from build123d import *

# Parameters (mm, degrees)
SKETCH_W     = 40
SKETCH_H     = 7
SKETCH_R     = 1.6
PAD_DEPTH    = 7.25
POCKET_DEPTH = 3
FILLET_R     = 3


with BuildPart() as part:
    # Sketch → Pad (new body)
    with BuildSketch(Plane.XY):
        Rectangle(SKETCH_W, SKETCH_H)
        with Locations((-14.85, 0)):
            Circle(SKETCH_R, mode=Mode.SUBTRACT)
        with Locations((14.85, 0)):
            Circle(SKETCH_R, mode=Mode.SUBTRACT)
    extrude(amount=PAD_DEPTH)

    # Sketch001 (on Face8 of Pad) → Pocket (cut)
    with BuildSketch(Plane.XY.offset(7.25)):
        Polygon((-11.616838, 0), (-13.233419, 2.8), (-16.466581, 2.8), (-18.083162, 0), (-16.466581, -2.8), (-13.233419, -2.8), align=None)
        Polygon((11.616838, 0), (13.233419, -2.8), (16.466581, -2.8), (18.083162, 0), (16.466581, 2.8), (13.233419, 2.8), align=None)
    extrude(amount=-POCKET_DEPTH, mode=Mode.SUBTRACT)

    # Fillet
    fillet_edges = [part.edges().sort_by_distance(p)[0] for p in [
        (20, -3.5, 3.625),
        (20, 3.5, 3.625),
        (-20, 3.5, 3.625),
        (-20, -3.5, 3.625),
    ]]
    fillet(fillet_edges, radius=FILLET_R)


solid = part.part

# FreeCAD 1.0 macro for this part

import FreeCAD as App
import Part
import Sketcher
Q = App.Units.Quantity


def edges_at(feature, points):
    """Names of the edges that pass closest to the given points."""
    edges = feature.Shape.Edges
    near = lambda p: min(range(len(edges)), key=lambda i: edges[i].distToShape(Part.Vertex(*p))[0])
    return sorted({f"Edge{near(p) + 1}" for p in points})

doc = App.newDocument("Part")
params = doc.addObject("Spreadsheet::Sheet", "Params")
for row, (alias, value) in enumerate([
    ("sketch1_diameter", "3.2 mm"),
    ("sketch1_width", "40 mm"),
    ("sketch1_height", "7 mm"),
    ("pad1_length", "7.25 mm"),
    ("pocket1_length", "3 mm"),
    ("fillet_radius", "3 mm"),
], start=1):
    params.set(f"A{row}", alias)
    params.set(f"B{row}", "=" + value)
    params.setAlias(f"B{row}", alias)

body = doc.addObject("PartDesign::Body", "Body")

# Sketch on XY plane
sketch1 = body.newObject("Sketcher::SketchObject", "Sketch")
sketch1.AttachmentSupport = (doc.getObject("XY_Plane"), [""])
sketch1.MapMode = "FlatFace"
sketch1.addGeometry([
    Part.LineSegment(App.Vector(-20, 3.5, 0), App.Vector(-20, -3.5, 0)),  # 0
    Part.LineSegment(App.Vector(-20, -3.5, 0), App.Vector(20, -3.5, 0)),  # 1
    Part.LineSegment(App.Vector(20, -3.5, 0), App.Vector(20, 3.5, 0)),  # 2
    Part.LineSegment(App.Vector(20, 3.5, 0), App.Vector(-20, 3.5, 0)),  # 3
    Part.Circle(App.Vector(-14.85, 0, 0), App.Vector(0, 0, 1), 1.6),  # 4
    Part.Circle(App.Vector(14.85, 0, 0), App.Vector(0, 0, 1), 1.6),  # 5
], False)
sketch1.addConstraint([
    Sketcher.Constraint("Coincident", 0, 2, 1, 1),
    Sketcher.Constraint("Coincident", 1, 2, 2, 1),
    Sketcher.Constraint("Coincident", 2, 2, 3, 1),
    Sketcher.Constraint("Coincident", 3, 2, 0, 1),
    Sketcher.Constraint("Vertical", 0),
    Sketcher.Constraint("Horizontal", 1),
    Sketcher.Constraint("Vertical", 2),
    Sketcher.Constraint("Horizontal", 3),
    Sketcher.Constraint("Equal", 4, 5),
    Sketcher.Constraint("Symmetric", 4, 3, 5, 3, -1, 1),
    Sketcher.Constraint("Symmetric", 0, 2, 2, 2, -1, 1),
    Sketcher.Constraint("PointOnObject", 4, 3, -1),
    Sketcher.Constraint("Diameter", 4, Q("3.2 mm")),
    Sketcher.Constraint("DistanceX", 1, 1, 1, 2, Q("40 mm")),
    Sketcher.Constraint("DistanceY", 0, 2, 0, 1, Q("7 mm")),
    Sketcher.Constraint("DistanceX", 4, 3, 5, 3, Q("29.7 mm")),
])
sketch1.setExpression("Constraints[12]", "Params.sketch1_diameter")
sketch1.setExpression("Constraints[13]", "Params.sketch1_width")
sketch1.setExpression("Constraints[14]", "Params.sketch1_height")
pad1 = body.newObject("PartDesign::Pad", "Pad")
pad1.Profile = sketch1
pad1.setExpression("Length", "Params.pad1_length")

# Sketch on XY plane
sketch2 = body.newObject("Sketcher::SketchObject", "Sketch001")
sketch2.AttachmentSupport = (doc.getObject("XY_Plane"), [""])
sketch2.MapMode = "FlatFace"
sketch2.AttachmentOffset = App.Placement(App.Vector(0, 0, 7.25), App.Rotation())
sketch2.addGeometry([
    Part.LineSegment(App.Vector(-11.616838, 0, 0), App.Vector(-13.233419, 2.8, 0)),  # 0
    Part.LineSegment(App.Vector(-13.233419, 2.8, 0), App.Vector(-16.466581, 2.8, 0)),  # 1
    Part.LineSegment(App.Vector(-16.466581, 2.8, 0), App.Vector(-18.083162, 0, 0)),  # 2
    Part.LineSegment(App.Vector(-18.083162, 0, 0), App.Vector(-16.466581, -2.8, 0)),  # 3
    Part.LineSegment(App.Vector(-16.466581, -2.8, 0), App.Vector(-13.233419, -2.8, 0)),  # 4
    Part.LineSegment(App.Vector(-13.233419, -2.8, 0), App.Vector(-11.616838, 0, 0)),  # 5
    Part.LineSegment(App.Vector(11.616838, 0, 0), App.Vector(13.233419, -2.8, 0)),  # 6
    Part.LineSegment(App.Vector(13.233419, -2.8, 0), App.Vector(16.466581, -2.8, 0)),  # 7
    Part.LineSegment(App.Vector(16.466581, -2.8, 0), App.Vector(18.083162, 0, 0)),  # 8
    Part.LineSegment(App.Vector(18.083162, 0, 0), App.Vector(16.466581, 2.8, 0)),  # 9
    Part.LineSegment(App.Vector(16.466581, 2.8, 0), App.Vector(13.233419, 2.8, 0)),  # 10
    Part.LineSegment(App.Vector(13.233419, 2.8, 0), App.Vector(11.616838, 0, 0)),  # 11
], False)
sketch2.addConstraint([
    Sketcher.Constraint("Coincident", 0, 2, 1, 1),
    Sketcher.Constraint("Coincident", 1, 2, 2, 1),
    Sketcher.Constraint("Coincident", 2, 2, 3, 1),
    Sketcher.Constraint("Coincident", 3, 2, 4, 1),
    Sketcher.Constraint("Coincident", 4, 2, 5, 1),
    Sketcher.Constraint("Coincident", 5, 2, 0, 1),
    Sketcher.Constraint("Coincident", 6, 2, 7, 1),
    Sketcher.Constraint("Coincident", 7, 2, 8, 1),
    Sketcher.Constraint("Coincident", 8, 2, 9, 1),
    Sketcher.Constraint("Coincident", 9, 2, 10, 1),
    Sketcher.Constraint("Coincident", 10, 2, 11, 1),
    Sketcher.Constraint("Coincident", 11, 2, 6, 1),
    Sketcher.Constraint("Horizontal", 1),
    Sketcher.Constraint("Horizontal", 4),
    Sketcher.Constraint("Horizontal", 7),
    Sketcher.Constraint("Horizontal", 10),
    Sketcher.Constraint("Symmetric", 0, 2, 6, 2, -1, 1),
    Sketcher.Constraint("Symmetric", 2, 2, 8, 2, -1, 1),
    Sketcher.Constraint("Symmetric", 3, 2, 9, 2, -1, 1),
    Sketcher.Constraint("Symmetric", 5, 2, 11, 2, -1, 1),
    Sketcher.Constraint("Symmetric", 4, 2, 6, 2, -2),
    Sketcher.Constraint("PointOnObject", 2, 2, -1),
    Sketcher.Constraint("PointOnObject", 5, 2, -1),
    Sketcher.Constraint("Parallel", 0, 3),
    Sketcher.Constraint("Parallel", 2, 5),
    Sketcher.Constraint("Parallel", 5, 8),
    Sketcher.Constraint("Parallel", 8, 11),
    Sketcher.Constraint("Angle", 0, Q("120.000004 deg")),
    Sketcher.Constraint("DistanceY", -1, 1, 0, 2, Q("2.8 mm")),
    Sketcher.Constraint("DistanceX", 3, 2, 6, 2, Q("29.7 mm")),
    Sketcher.Constraint("DistanceX", 1, 2, 1, 1, Q("3.233162 mm")),
])
pocket1 = body.newObject("PartDesign::Pocket", "Pocket")
pocket1.Profile = sketch2
pocket1.setExpression("Length", "Params.pocket1_length")
doc.recompute()

fillet = body.newObject("PartDesign::Fillet", "Fillet")
fillet.Base = (pocket1, edges_at(pocket1, [
    (20, -3.5, 3.625),
    (20, 3.5, 3.625),
    (-20, 3.5, 3.625),
    (-20, -3.5, 3.625),
]))
fillet.setExpression("Radius", "Params.fillet_radius")

doc.recompute()
